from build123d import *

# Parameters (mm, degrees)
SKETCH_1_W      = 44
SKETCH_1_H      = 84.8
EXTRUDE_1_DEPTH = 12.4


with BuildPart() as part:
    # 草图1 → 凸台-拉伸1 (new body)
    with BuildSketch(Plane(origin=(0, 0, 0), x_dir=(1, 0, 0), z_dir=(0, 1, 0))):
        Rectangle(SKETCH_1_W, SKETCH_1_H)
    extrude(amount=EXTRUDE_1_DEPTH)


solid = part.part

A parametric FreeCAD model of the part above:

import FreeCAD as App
import Part
import Sketcher

V = App.Vector


def add_polygon(sketch, points):
    """Adds a closed chain of lines whose ends are joined by coincident constraints."""
    first, n = sketch.GeometryCount, len(points)
    for a, b in zip(points, points[1:] + points[:1]):
        sketch.addGeometry(Part.LineSegment(App.Vector(*a, 0), App.Vector(*b, 0)), False)
    for i in range(n):
        sketch.addConstraint(Sketcher.Constraint("Coincident", first + i, 2, first + (i + 1) % n, 1))

doc = App.newDocument("Part")
body = doc.addObject("PartDesign::Body", "Body")

# Sketch on XZ plane
sketch1 = doc.addObject("Sketcher::SketchObject", "Sketch")
body.addObject(sketch1)
sketch1.AttachmentSupport = (doc.XZ_Plane, [""])
sketch1.MapMode = "FlatFace"
add_polygon(sketch1, [(-22, -42), (-22, 42), (22, 42), (22, -42)])  # lines 0-3
sketch1.addConstraint([
    Sketcher.Constraint("Vertical", 0),
    Sketcher.Constraint("Horizontal", 1),
    Sketcher.Constraint("Vertical", 2),
    Sketcher.Constraint("Horizontal", 3),
    Sketcher.Constraint("Symmetric", 0, 2, 2, 2, -1, 1),
    Sketcher.Constraint("DistanceX", 1, 1, 1, 2, 44.0),
    Sketcher.Constraint("DistanceY", 0, 1, 0, 2, 84.8),
])
pad1 = doc.addObject("PartDesign::Pad", "Pad")
body.addObject(pad1)
pad1.Profile = sketch1
pad1.Length = 12.4
pad1.Reversed = True

doc.recompute()
